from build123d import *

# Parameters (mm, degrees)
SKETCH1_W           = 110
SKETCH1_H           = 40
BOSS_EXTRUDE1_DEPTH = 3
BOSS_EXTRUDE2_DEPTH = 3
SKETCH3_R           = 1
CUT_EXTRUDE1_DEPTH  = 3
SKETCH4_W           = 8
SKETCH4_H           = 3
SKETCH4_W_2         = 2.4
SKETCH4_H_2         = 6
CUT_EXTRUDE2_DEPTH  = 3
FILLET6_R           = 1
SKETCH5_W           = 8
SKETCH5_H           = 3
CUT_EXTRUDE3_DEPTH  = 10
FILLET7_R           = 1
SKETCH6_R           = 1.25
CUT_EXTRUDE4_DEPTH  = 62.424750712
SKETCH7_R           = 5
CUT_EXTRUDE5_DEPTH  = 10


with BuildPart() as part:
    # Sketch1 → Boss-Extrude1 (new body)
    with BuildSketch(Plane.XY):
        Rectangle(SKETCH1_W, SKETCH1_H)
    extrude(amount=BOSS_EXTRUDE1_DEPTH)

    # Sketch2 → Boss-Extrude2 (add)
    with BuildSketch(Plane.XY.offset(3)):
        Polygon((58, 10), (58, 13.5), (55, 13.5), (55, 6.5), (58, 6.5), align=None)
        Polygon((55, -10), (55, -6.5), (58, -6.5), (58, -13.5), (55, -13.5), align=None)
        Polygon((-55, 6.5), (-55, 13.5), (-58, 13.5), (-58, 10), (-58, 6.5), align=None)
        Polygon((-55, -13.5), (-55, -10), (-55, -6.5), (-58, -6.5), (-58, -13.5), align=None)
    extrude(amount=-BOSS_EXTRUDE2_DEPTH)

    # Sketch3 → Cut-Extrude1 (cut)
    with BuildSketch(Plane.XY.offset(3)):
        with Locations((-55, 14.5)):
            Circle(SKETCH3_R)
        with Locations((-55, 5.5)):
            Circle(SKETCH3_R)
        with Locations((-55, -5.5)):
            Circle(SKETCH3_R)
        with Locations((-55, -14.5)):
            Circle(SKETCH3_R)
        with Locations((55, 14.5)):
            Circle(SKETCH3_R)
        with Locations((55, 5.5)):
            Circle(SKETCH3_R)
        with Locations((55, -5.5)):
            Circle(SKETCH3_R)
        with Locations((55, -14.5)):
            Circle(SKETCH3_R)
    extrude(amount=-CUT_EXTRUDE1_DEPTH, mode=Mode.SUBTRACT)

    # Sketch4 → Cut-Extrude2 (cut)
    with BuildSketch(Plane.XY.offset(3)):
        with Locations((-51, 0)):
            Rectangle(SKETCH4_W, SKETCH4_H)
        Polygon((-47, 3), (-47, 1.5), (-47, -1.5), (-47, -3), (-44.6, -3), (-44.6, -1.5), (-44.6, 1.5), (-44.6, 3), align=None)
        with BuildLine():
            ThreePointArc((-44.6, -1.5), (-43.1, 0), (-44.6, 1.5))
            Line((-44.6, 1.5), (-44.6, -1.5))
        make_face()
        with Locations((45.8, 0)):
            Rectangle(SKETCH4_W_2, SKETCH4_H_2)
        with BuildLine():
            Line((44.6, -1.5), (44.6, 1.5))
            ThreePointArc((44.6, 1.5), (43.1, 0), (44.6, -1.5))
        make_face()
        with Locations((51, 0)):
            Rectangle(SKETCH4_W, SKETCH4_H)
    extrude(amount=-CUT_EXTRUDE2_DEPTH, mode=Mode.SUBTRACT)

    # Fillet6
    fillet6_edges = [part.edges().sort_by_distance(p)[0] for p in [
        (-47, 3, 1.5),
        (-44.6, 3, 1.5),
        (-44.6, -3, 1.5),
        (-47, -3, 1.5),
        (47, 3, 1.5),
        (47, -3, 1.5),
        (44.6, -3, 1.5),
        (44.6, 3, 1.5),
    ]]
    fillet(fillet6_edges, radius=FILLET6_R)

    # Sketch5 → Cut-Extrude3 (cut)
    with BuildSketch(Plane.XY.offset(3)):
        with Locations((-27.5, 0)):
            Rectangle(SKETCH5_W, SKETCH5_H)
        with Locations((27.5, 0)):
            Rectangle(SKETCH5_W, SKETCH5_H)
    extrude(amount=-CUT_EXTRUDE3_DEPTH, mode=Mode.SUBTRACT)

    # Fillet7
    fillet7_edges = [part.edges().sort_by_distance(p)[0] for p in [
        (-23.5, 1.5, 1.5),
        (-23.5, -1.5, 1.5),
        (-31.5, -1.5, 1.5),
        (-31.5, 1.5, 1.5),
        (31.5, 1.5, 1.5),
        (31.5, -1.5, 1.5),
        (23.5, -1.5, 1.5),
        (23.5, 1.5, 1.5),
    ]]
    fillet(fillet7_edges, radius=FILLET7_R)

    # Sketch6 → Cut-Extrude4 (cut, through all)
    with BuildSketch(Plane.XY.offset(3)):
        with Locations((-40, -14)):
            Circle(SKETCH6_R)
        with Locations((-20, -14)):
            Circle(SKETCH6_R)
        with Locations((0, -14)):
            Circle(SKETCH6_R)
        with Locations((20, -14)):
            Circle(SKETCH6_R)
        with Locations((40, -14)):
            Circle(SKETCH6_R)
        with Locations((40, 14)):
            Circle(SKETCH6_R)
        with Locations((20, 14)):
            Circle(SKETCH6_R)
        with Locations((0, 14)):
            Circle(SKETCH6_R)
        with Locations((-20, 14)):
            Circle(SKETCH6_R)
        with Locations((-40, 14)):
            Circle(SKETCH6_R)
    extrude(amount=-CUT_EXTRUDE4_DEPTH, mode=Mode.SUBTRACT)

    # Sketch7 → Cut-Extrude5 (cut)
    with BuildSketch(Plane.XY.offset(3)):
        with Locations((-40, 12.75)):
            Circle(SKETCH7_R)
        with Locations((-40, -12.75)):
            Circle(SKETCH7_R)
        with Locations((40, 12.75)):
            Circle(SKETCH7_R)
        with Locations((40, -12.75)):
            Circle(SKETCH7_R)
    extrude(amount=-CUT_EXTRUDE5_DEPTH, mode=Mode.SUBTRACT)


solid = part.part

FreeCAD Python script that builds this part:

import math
import FreeCAD as App
import Part
import Sketcher
Q = App.Units.Quantity


def edges_at(feature, points):
    """Names of the edges that pass closest to the given points."""
    edges = feature.Shape.Edges
    near = lambda p: min(range(len(edges)), key=lambda i: edges[i].distToShape(Part.Vertex(*p))[0])
    return sorted({f"Edge{near(p) + 1}" for p in points})

doc = App.newDocument("Part")
body = doc.addObject("PartDesign::Body", "Body")

sketch1 = body.newObject("Sketcher::SketchObject", "Sketch")
sketch1.AttachmentSupport = (doc.getObject("XY_Plane"), [""])
sketch1.MapMode = "FlatFace"
sketch1.addGeometry(Part.LineSegment(App.Vector(-55, 20, 0), App.Vector(-55, -20, 0)), False)
sketch1.addGeometry(Part.LineSegment(App.Vector(-55, -20, 0), App.Vector(55, -20, 0)), False)
sketch1.addGeometry(Part.LineSegment(App.Vector(55, -20, 0), App.Vector(55, 20, 0)), False)
sketch1.addGeometry(Part.LineSegment(App.Vector(55, 20, 0), App.Vector(-55, 20, 0)), False)
sketch1.addConstraint(Sketcher.Constraint("Coincident", 0, 2, 1, 1))
sketch1.addConstraint(Sketcher.Constraint("Coincident", 1, 2, 2, 1))
sketch1.addConstraint(Sketcher.Constraint("Coincident", 2, 2, 3, 1))
sketch1.addConstraint(Sketcher.Constraint("Coincident", 3, 2, 0, 1))
sketch1.addConstraint(Sketcher.Constraint("Vertical", 0))
sketch1.addConstraint(Sketcher.Constraint("Horizontal", 1))
sketch1.addConstraint(Sketcher.Constraint("Vertical", 2))
sketch1.addConstraint(Sketcher.Constraint("Horizontal", 3))
sketch1.addConstraint(Sketcher.Constraint("Symmetric", 0, 2, 2, 2, -1, 1))
sketch1.addConstraint(Sketcher.Constraint("DistanceX", 1, 1, 1, 2, Q("110 mm")))
sketch1.addConstraint(Sketcher.Constraint("DistanceY", 0, 2, 0, 1, Q("40 mm")))
pad1 = body.newObject("PartDesign::Pad", "Pad")
pad1.Profile = sketch1
pad1.Length = 3

sketch2 = body.newObject("Sketcher::SketchObject", "Sketch001")
sketch2.AttachmentSupport = (doc.getObject("XY_Plane"), [""])
sketch2.MapMode = "FlatFace"
sketch2.AttachmentOffset = App.Placement(App.Vector(0, 0, 3), App.Rotation())
sketch2.addGeometry(Part.LineSegment(App.Vector(58, 13.5, 0), App.Vector(55, 13.5, 0)), False)
sketch2.addGeometry(Part.LineSegment(App.Vector(55, 13.5, 0), App.Vector(55, 6.5, 0)), False)
sketch2.addGeometry(Part.LineSegment(App.Vector(55, 6.5, 0), App.Vector(58, 6.5, 0)), False)
sketch2.addGeometry(Part.LineSegment(App.Vector(58, 6.5, 0), App.Vector(58, 13.5, 0)), False)
sketch2.addGeometry(Part.LineSegment(App.Vector(55, -6.5, 0), App.Vector(55, -13.5, 0)), False)
sketch2.addGeometry(Part.LineSegment(App.Vector(55, -13.5, 0), App.Vector(58, -13.5, 0)), False)
sketch2.addGeometry(Part.LineSegment(App.Vector(58, -13.5, 0), App.Vector(58, -6.5, 0)), False)
sketch2.addGeometry(Part.LineSegment(App.Vector(58, -6.5, 0), App.Vector(55, -6.5, 0)), False)
sketch2.addGeometry(Part.LineSegment(App.Vector(-55, 6.5, 0), App.Vector(-55, 13.5, 0)), False)
sketch2.addGeometry(Part.LineSegment(App.Vector(-55, 13.5, 0), App.Vector(-58, 13.5, 0)), False)
sketch2.addGeometry(Part.LineSegment(App.Vector(-58, 13.5, 0), App.Vector(-58, 6.5, 0)), False)
sketch2.addGeometry(Part.LineSegment(App.Vector(-58, 6.5, 0), App.Vector(-55, 6.5, 0)), False)
sketch2.addGeometry(Part.LineSegment(App.Vector(-55, -13.5, 0), App.Vector(-55, -6.5, 0)), False)
sketch2.addGeometry(Part.LineSegment(App.Vector(-55, -6.5, 0), App.Vector(-58, -6.5, 0)), False)
sketch2.addGeometry(Part.LineSegment(App.Vector(-58, -6.5, 0), App.Vector(-58, -13.5, 0)), False)
sketch2.addGeometry(Part.LineSegment(App.Vector(-58, -13.5, 0), App.Vector(-55, -13.5, 0)), False)
sketch2.addConstraint(Sketcher.Constraint("Coincident", 0, 2, 1, 1))
sketch2.addConstraint(Sketcher.Constraint("Coincident", 1, 2, 2, 1))
sketch2.addConstraint(Sketcher.Constraint("Coincident", 2, 2, 3, 1))
sketch2.addConstraint(Sketcher.Constraint("Coincident", 3, 2, 0, 1))
sketch2.addConstraint(Sketcher.Constraint("Coincident", 4, 2, 5, 1))
sketch2.addConstraint(Sketcher.Constraint("Coincident", 5, 2, 6, 1))
sketch2.addConstraint(Sketcher.Constraint("Coincident", 6, 2, 7, 1))
sketch2.addConstraint(Sketcher.Constraint("Coincident", 7, 2, 4, 1))
sketch2.addConstraint(Sketcher.Constraint("Coincident", 8, 2, 9, 1))
sketch2.addConstraint(Sketcher.Constraint("Coincident", 9, 2, 10, 1))
sketch2.addConstraint(Sketcher.Constraint("Coincident", 10, 2, 11, 1))
sketch2.addConstraint(Sketcher.Constraint("Coincident", 11, 2, 8, 1))
sketch2.addConstraint(Sketcher.Constraint("Coincident", 12, 2, 13, 1))
sketch2.addConstraint(Sketcher.Constraint("Coincident", 13, 2, 14, 1))
sketch2.addConstraint(Sketcher.Constraint("Coincident", 14, 2, 15, 1))
sketch2.addConstraint(Sketcher.Constraint("Coincident", 15, 2, 12, 1))
sketch2.addConstraint(Sketcher.Constraint("Horizontal", 0))
sketch2.addConstraint(Sketcher.Constraint("Vertical", 1))
sketch2.addConstraint(Sketcher.Constraint("Horizontal", 2))
sketch2.addConstraint(Sketcher.Constraint("Vertical", 3))
sketch2.addConstraint(Sketcher.Constraint("Vertical", 4))
sketch2.addConstraint(Sketcher.Constraint("Horizontal", 5))
sketch2.addConstraint(Sketcher.Constraint("Vertical", 6))
sketch2.addConstraint(Sketcher.Constraint("Horizontal", 7))
sketch2.addConstraint(Sketcher.Constraint("Vertical", 8))
sketch2.addConstraint(Sketcher.Constraint("Horizontal", 9))
sketch2.addConstraint(Sketcher.Constraint("Vertical", 10))
sketch2.addConstraint(Sketcher.Constraint("Horizontal", 11))
sketch2.addConstraint(Sketcher.Constraint("Vertical", 12))
sketch2.addConstraint(Sketcher.Constraint("Horizontal", 13))
sketch2.addConstraint(Sketcher.Constraint("Vertical", 14))
sketch2.addConstraint(Sketcher.Constraint("Horizontal", 15))
sketch2.addConstraint(Sketcher.Constraint("Symmetric", 4, 2, 8, 2, -1, 1))
sketch2.addConstraint(Sketcher.Constraint("Symmetric", 6, 2, 10, 2, -1, 1))
sketch2.addConstraint(Sketcher.Constraint("Symmetric", 1, 2, 12, 2, -1, 1))
sketch2.addConstraint(Sketcher.Constraint("Symmetric", 3, 2, 14, 2, -1, 1))
sketch2.addConstraint(Sketcher.Constraint("Symmetric", 0, 2, 8, 2, -2))
sketch2.addConstraint(Sketcher.Constraint("Symmetric", 2, 2, 10, 2, -2))
sketch2.addConstraint(Sketcher.Constraint("DistanceX", 0, 2, 0, 1, Q("3 mm")))
sketch2.addConstraint(Sketcher.Constraint("DistanceY", 1, 2, 1, 1, Q("7 mm")))
sketch2.addConstraint(Sketcher.Constraint("DistanceX", -1, 1, 0, 2, Q("55 mm")))
sketch2.addConstraint(Sketcher.Constraint("DistanceY", 4, 2, 1, 2, Q("20 mm")))
pad2 = body.newObject("PartDesign::Pad", "Pad001")
pad2.Profile = sketch2
pad2.Length = 3
pad2.Reversed = True

sketch3 = body.newObject("Sketcher::SketchObject", "Sketch002")
sketch3.AttachmentSupport = (doc.getObject("XY_Plane"), [""])
sketch3.MapMode = "FlatFace"
sketch3.AttachmentOffset = App.Placement(App.Vector(0, 0, 3), App.Rotation())
sketch3.addGeometry(Part.Circle(App.Vector(-55, 14.5, 0), App.Vector(0, 0, 1), 1), False)
sketch3.addGeometry(Part.Circle(App.Vector(-55, 5.5, 0), App.Vector(0, 0, 1), 1), False)
sketch3.addGeometry(Part.Circle(App.Vector(-55, -5.5, 0), App.Vector(0, 0, 1), 1), False)
sketch3.addGeometry(Part.Circle(App.Vector(-55, -14.5, 0), App.Vector(0, 0, 1), 1), False)
sketch3.addGeometry(Part.Circle(App.Vector(55, 14.5, 0), App.Vector(0, 0, 1), 1), False)
sketch3.addGeometry(Part.Circle(App.Vector(55, 5.5, 0), App.Vector(0, 0, 1), 1), False)
sketch3.addGeometry(Part.Circle(App.Vector(55, -5.5, 0), App.Vector(0, 0, 1), 1), False)
sketch3.addGeometry(Part.Circle(App.Vector(55, -14.5, 0), App.Vector(0, 0, 1), 1), False)
sketch3.addConstraint(Sketcher.Constraint("Equal", 0, 1))
sketch3.addConstraint(Sketcher.Constraint("Equal", 1, 2))
sketch3.addConstraint(Sketcher.Constraint("Equal", 2, 3))
sketch3.addConstraint(Sketcher.Constraint("Equal", 3, 4))
sketch3.addConstraint(Sketcher.Constraint("Equal", 4, 5))
sketch3.addConstraint(Sketcher.Constraint("Equal", 5, 6))
sketch3.addConstraint(Sketcher.Constraint("Equal", 6, 7))
sketch3.addConstraint(Sketcher.Constraint("Symmetric", 3, 3, 4, 3, -1, 1))
sketch3.addConstraint(Sketcher.Constraint("Symmetric", 2, 3, 5, 3, -1, 1))
sketch3.addConstraint(Sketcher.Constraint("Symmetric", 1, 3, 6, 3, -1, 1))
sketch3.addConstraint(Sketcher.Constraint("Symmetric", 0, 3, 7, 3, -1, 1))
sketch3.addConstraint(Sketcher.Constraint("Symmetric", 0, 3, 4, 3, -2))
sketch3.addConstraint(Sketcher.Constraint("Symmetric", 1, 3, 5, 3, -2))
sketch3.addConstraint(Sketcher.Constraint("Vertical", 0, 3, 1, 3))
sketch3.addConstraint(Sketcher.Constraint("Diameter", 0, Q("2 mm")))
sketch3.addConstraint(Sketcher.Constraint("DistanceX", 0, 3, -1, 1, Q("55 mm")))
sketch3.addConstraint(Sketcher.Constraint("DistanceY", 1, 3, 0, 3, Q("9 mm")))
sketch3.addConstraint(Sketcher.Constraint("DistanceY", 2, 3, 1, 3, Q("11 mm")))
pocket1 = body.newObject("PartDesign::Pocket", "Pocket")
pocket1.Profile = sketch3
pocket1.Length = 3

sketch4 = body.newObject("Sketcher::SketchObject", "Sketch003")
sketch4.AttachmentSupport = (doc.getObject("XY_Plane"), [""])
sketch4.MapMode = "FlatFace"
sketch4.AttachmentOffset = App.Placement(App.Vector(0, 0, 3), App.Rotation())
sketch4.addGeometry(Part.LineSegment(App.Vector(-55, 1.5, 0), App.Vector(-55, -1.5, 0)), False)
sketch4.addGeometry(Part.LineSegment(App.Vector(-55, -1.5, 0), App.Vector(-47, -1.5, 0)), False)
sketch4.addGeometry(Part.LineSegment(App.Vector(-47, -1.5, 0), App.Vector(-47, -3, 0)), False)
sketch4.addGeometry(Part.LineSegment(App.Vector(-47, -3, 0), App.Vector(-44.6, -3, 0)), False)
sketch4.addGeometry(Part.LineSegment(App.Vector(-44.6, -3, 0), App.Vector(-44.6, -1.5, 0)), False)
sketch4.addGeometry(Part.ArcOfCircle(Part.Circle(App.Vector(-44.6, 0, 0), App.Vector(0, 0, 1), 1.5), math.radians(-90), math.radians(90)), False)
sketch4.addGeometry(Part.LineSegment(App.Vector(-44.6, 1.5, 0), App.Vector(-44.6, 3, 0)), False)
sketch4.addGeometry(Part.LineSegment(App.Vector(-44.6, 3, 0), App.Vector(-47, 3, 0)), False)
sketch4.addGeometry(Part.LineSegment(App.Vector(-47, 3, 0), App.Vector(-47, 1.5, 0)), False)
sketch4.addGeometry(Part.LineSegment(App.Vector(-47, 1.5, 0), App.Vector(-55, 1.5, 0)), False)
sketch4.addGeometry(Part.LineSegment(App.Vector(44.6, -1.5, 0), App.Vector(44.6, -3, 0)), False)
sketch4.addGeometry(Part.LineSegment(App.Vector(44.6, -3, 0), App.Vector(47, -3, 0)), False)
sketch4.addGeometry(Part.LineSegment(App.Vector(47, -3, 0), App.Vector(47, -1.5, 0)), False)
sketch4.addGeometry(Part.LineSegment(App.Vector(47, -1.5, 0), App.Vector(55, -1.5, 0)), False)
sketch4.addGeometry(Part.LineSegment(App.Vector(55, -1.5, 0), App.Vector(55, 1.5, 0)), False)
sketch4.addGeometry(Part.LineSegment(App.Vector(55, 1.5, 0), App.Vector(47, 1.5, 0)), False)
sketch4.addGeometry(Part.LineSegment(App.Vector(47, 1.5, 0), App.Vector(47, 3, 0)), False)
sketch4.addGeometry(Part.LineSegment(App.Vector(47, 3, 0), App.Vector(44.6, 3, 0)), False)
sketch4.addGeometry(Part.LineSegment(App.Vector(44.6, 3, 0), App.Vector(44.6, 1.5, 0)), False)
sketch4.addGeometry(Part.ArcOfCircle(Part.Circle(App.Vector(44.6, 0, 0), App.Vector(0, 0, 1), 1.5), math.radians(90), math.radians(270)), False)
sketch4.addConstraint(Sketcher.Constraint("Coincident", 0, 2, 1, 1))
sketch4.addConstraint(Sketcher.Constraint("Coincident", 1, 2, 2, 1))
sketch4.addConstraint(Sketcher.Constraint("Coincident", 2, 2, 3, 1))
sketch4.addConstraint(Sketcher.Constraint("Coincident", 3, 2, 4, 1))
sketch4.addConstraint(Sketcher.Constraint("Coincident", 4, 2, 5, 1))
sketch4.addConstraint(Sketcher.Constraint("Coincident", 5, 2, 6, 1))
sketch4.addConstraint(Sketcher.Constraint("Coincident", 6, 2, 7, 1))
sketch4.addConstraint(Sketcher.Constraint("Coincident", 7, 2, 8, 1))
sketch4.addConstraint(Sketcher.Constraint("Coincident", 8, 2, 9, 1))
sketch4.addConstraint(Sketcher.Constraint("Coincident", 9, 2, 0, 1))
sketch4.addConstraint(Sketcher.Constraint("Coincident", 10, 2, 11, 1))
sketch4.addConstraint(Sketcher.Constraint("Coincident", 11, 2, 12, 1))
sketch4.addConstraint(Sketcher.Constraint("Coincident", 12, 2, 13, 1))
sketch4.addConstraint(Sketcher.Constraint("Coincident", 13, 2, 14, 1))
sketch4.addConstraint(Sketcher.Constraint("Coincident", 14, 2, 15, 1))
sketch4.addConstraint(Sketcher.Constraint("Coincident", 15, 2, 16, 1))
sketch4.addConstraint(Sketcher.Constraint("Coincident", 16, 2, 17, 1))
sketch4.addConstraint(Sketcher.Constraint("Coincident", 17, 2, 18, 1))
sketch4.addConstraint(Sketcher.Constraint("Coincident", 18, 2, 19, 1))
sketch4.addConstraint(Sketcher.Constraint("Coincident", 19, 2, 10, 1))
sketch4.addConstraint(Sketcher.Constraint("Vertical", 0))
sketch4.addConstraint(Sketcher.Constraint("Horizontal", 1))
sketch4.addConstraint(Sketcher.Constraint("Vertical", 2))
sketch4.addConstraint(Sketcher.Constraint("Horizontal", 3))
sketch4.addConstraint(Sketcher.Constraint("Vertical", 4))
sketch4.addConstraint(Sketcher.Constraint("Vertical", 6))
sketch4.addConstraint(Sketcher.Constraint("Horizontal", 7))
sketch4.addConstraint(Sketcher.Constraint("Vertical", 8))
sketch4.addConstraint(Sketcher.Constraint("Horizontal", 9))
sketch4.addConstraint(Sketcher.Constraint("Vertical", 10))
sketch4.addConstraint(Sketcher.Constraint("Horizontal", 11))
sketch4.addConstraint(Sketcher.Constraint("Vertical", 12))
sketch4.addConstraint(Sketcher.Constraint("Horizontal", 13))
sketch4.addConstraint(Sketcher.Constraint("Vertical", 14))
sketch4.addConstraint(Sketcher.Constraint("Horizontal", 15))
sketch4.addConstraint(Sketcher.Constraint("Vertical", 16))
sketch4.addConstraint(Sketcher.Constraint("Horizontal", 17))
sketch4.addConstraint(Sketcher.Constraint("Vertical", 18))
sketch4.addConstraint(Sketcher.Constraint("Equal", 5, 19))
sketch4.addConstraint(Sketcher.Constraint("Symmetric", 5, 3, 19, 3, -1, 1))
sketch4.addConstraint(Sketcher.Constraint("Symmetric", 6, 2, 10, 2, -1, 1))
sketch4.addConstraint(Sketcher.Constraint("Symmetric", 8, 2, 12, 2, -1, 1))
sketch4.addConstraint(Sketcher.Constraint("Symmetric", 0, 2, 14, 2, -1, 1))
sketch4.addConstraint(Sketcher.Constraint("Symmetric", 2, 2, 16, 2, -1, 1))
sketch4.addConstraint(Sketcher.Constraint("Symmetric", 3, 2, 10, 2, -2))
sketch4.addConstraint(Sketcher.Constraint("Symmetric", 1, 2, 12, 2, -2))
sketch4.addConstraint(Sketcher.Constraint("Symmetric", 5, 2, 18, 2, -2))
sketch4.addConstraint(Sketcher.Constraint("Horizontal", 1, 2, 4, 2))
sketch4.addConstraint(Sketcher.Constraint("Vertical", 5, 3, 3, 2))
sketch4.addConstraint(Sketcher.Constraint("Radius", 5, Q("1.5 mm")))
sketch4.addConstraint(Sketcher.Constraint("DistanceX", 1, 1, 1, 2, Q("8 mm")))
sketch4.addConstraint(Sketcher.Constraint("DistanceX", 3, 1, 3, 2, Q("2.4 mm")))
sketch4.addConstraint(Sketcher.Constraint("DistanceY", 2, 2, 2, 1, Q("1.5 mm")))
sketch4.addConstraint(Sketcher.Constraint("DistanceX", 0, 2, -1, 1, Q("55 mm")))
pocket2 = body.newObject("PartDesign::Pocket", "Pocket001")
pocket2.Profile = sketch4
pocket2.Length = 3
doc.recompute()

fillet = body.newObject("PartDesign::Fillet", "Fillet")
fillet.Base = (pocket2, edges_at(pocket2, [
    (-47, 3, 1.5),
    (-44.6, 3, 1.5),
    (-44.6, -3, 1.5),
    (-47, -3, 1.5),
    (47, 3, 1.5),
    (47, -3, 1.5),
    (44.6, -3, 1.5),
    (44.6, 3, 1.5),
]))
fillet.Radius = 1

sketch5 = body.newObject("Sketcher::SketchObject", "Sketch004")
sketch5.AttachmentSupport = (doc.getObject("XY_Plane"), [""])
sketch5.MapMode = "FlatFace"
sketch5.AttachmentOffset = App.Placement(App.Vector(0, 0, 3), App.Rotation())
sketch5.addGeometry(Part.LineSegment(App.Vector(-31.5, 1.5, 0), App.Vector(-31.5, -1.5, 0)), False)
sketch5.addGeometry(Part.LineSegment(App.Vector(-31.5, -1.5, 0), App.Vector(-23.5, -1.5, 0)), False)
sketch5.addGeometry(Part.LineSegment(App.Vector(-23.5, -1.5, 0), App.Vector(-23.5, 1.5, 0)), False)
sketch5.addGeometry(Part.LineSegment(App.Vector(-23.5, 1.5, 0), App.Vector(-31.5, 1.5, 0)), False)
sketch5.addGeometry(Part.LineSegment(App.Vector(23.5, 1.5, 0), App.Vector(23.5, -1.5, 0)), False)
sketch5.addGeometry(Part.LineSegment(App.Vector(23.5, -1.5, 0), App.Vector(31.5, -1.5, 0)), False)
sketch5.addGeometry(Part.LineSegment(App.Vector(31.5, -1.5, 0), App.Vector(31.5, 1.5, 0)), False)
sketch5.addGeometry(Part.LineSegment(App.Vector(31.5, 1.5, 0), App.Vector(23.5, 1.5, 0)), False)
sketch5.addConstraint(Sketcher.Constraint("Coincident", 0, 2, 1, 1))
sketch5.addConstraint(Sketcher.Constraint("Coincident", 1, 2, 2, 1))
sketch5.addConstraint(Sketcher.Constraint("Coincident", 2, 2, 3, 1))
sketch5.addConstraint(Sketcher.Constraint("Coincident", 3, 2, 0, 1))
sketch5.addConstraint(Sketcher.Constraint("Coincident", 4, 2, 5, 1))
sketch5.addConstraint(Sketcher.Constraint("Coincident", 5, 2, 6, 1))
sketch5.addConstraint(Sketcher.Constraint("Coincident", 6, 2, 7, 1))
sketch5.addConstraint(Sketcher.Constraint("Coincident", 7, 2, 4, 1))
sketch5.addConstraint(Sketcher.Constraint("Vertical", 0))
sketch5.addConstraint(Sketcher.Constraint("Horizontal", 1))
sketch5.addConstraint(Sketcher.Constraint("Vertical", 2))
sketch5.addConstraint(Sketcher.Constraint("Horizontal", 3))
sketch5.addConstraint(Sketcher.Constraint("Vertical", 4))
sketch5.addConstraint(Sketcher.Constraint("Horizontal", 5))
sketch5.addConstraint(Sketcher.Constraint("Vertical", 6))
sketch5.addConstraint(Sketcher.Constraint("Horizontal", 7))
sketch5.addConstraint(Sketcher.Constraint("Symmetric", 2, 2, 4, 2, -1, 1))
sketch5.addConstraint(Sketcher.Constraint("Symmetric", 0, 2, 6, 2, -1, 1))
sketch5.addConstraint(Sketcher.Constraint("Horizontal", 1, 2, 4, 2))
sketch5.addConstraint(Sketcher.Constraint("DistanceX", 1, 1, 1, 2, Q("8 mm")))
sketch5.addConstraint(Sketcher.Constraint("DistanceY", 0, 2, 0, 1, Q("3 mm")))
sketch5.addConstraint(Sketcher.Constraint("DistanceX", 1, 2, 4, 2, Q("47 mm")))
pocket3 = body.newObject("PartDesign::Pocket", "Pocket002")
pocket3.Profile = sketch5
pocket3.Length = 10
doc.recompute()

fillet2 = body.newObject("PartDesign::Fillet", "Fillet001")
fillet2.Base = (pocket3, edges_at(pocket3, [
    (-23.5, 1.5, 1.5),
    (-23.5, -1.5, 1.5),
    (-31.5, -1.5, 1.5),
    (-31.5, 1.5, 1.5),
    (31.5, 1.5, 1.5),
    (31.5, -1.5, 1.5),
    (23.5, -1.5, 1.5),
    (23.5, 1.5, 1.5),
]))
fillet2.Radius = 1

sketch6 = body.newObject("Sketcher::SketchObject", "Sketch005")
sketch6.AttachmentSupport = (doc.getObject("XY_Plane"), [""])
sketch6.MapMode = "FlatFace"
sketch6.AttachmentOffset = App.Placement(App.Vector(0, 0, 3), App.Rotation())
sketch6.addGeometry(Part.Circle(App.Vector(-40, -14, 0), App.Vector(0, 0, 1), 1.25), False)
sketch6.addGeometry(Part.Circle(App.Vector(-20, -14, 0), App.Vector(0, 0, 1), 1.25), False)
sketch6.addGeometry(Part.Circle(App.Vector(0, -14, 0), App.Vector(0, 0, 1), 1.25), False)
sketch6.addGeometry(Part.Circle(App.Vector(20, -14, 0), App.Vector(0, 0, 1), 1.25), False)
sketch6.addGeometry(Part.Circle(App.Vector(40, -14, 0), App.Vector(0, 0, 1), 1.25), False)
sketch6.addGeometry(Part.Circle(App.Vector(40, 14, 0), App.Vector(0, 0, 1), 1.25), False)
sketch6.addGeometry(Part.Circle(App.Vector(20, 14, 0), App.Vector(0, 0, 1), 1.25), False)
sketch6.addGeometry(Part.Circle(App.Vector(0, 14, 0), App.Vector(0, 0, 1), 1.25), False)
sketch6.addGeometry(Part.Circle(App.Vector(-20, 14, 0), App.Vector(0, 0, 1), 1.25), False)
sketch6.addGeometry(Part.Circle(App.Vector(-40, 14, 0), App.Vector(0, 0, 1), 1.25), False)
sketch6.addConstraint(Sketcher.Constraint("Equal", 0, 1))
sketch6.addConstraint(Sketcher.Constraint("Equal", 1, 2))
sketch6.addConstraint(Sketcher.Constraint("Equal", 2, 3))
sketch6.addConstraint(Sketcher.Constraint("Equal", 3, 4))
sketch6.addConstraint(Sketcher.Constraint("Equal", 4, 5))
sketch6.addConstraint(Sketcher.Constraint("Equal", 5, 6))
sketch6.addConstraint(Sketcher.Constraint("Equal", 6, 7))
sketch6.addConstraint(Sketcher.Constraint("Equal", 7, 8))
sketch6.addConstraint(Sketcher.Constraint("Equal", 8, 9))
sketch6.addConstraint(Sketcher.Constraint("Symmetric", 0, 3, 5, 3, -1, 1))
sketch6.addConstraint(Sketcher.Constraint("Symmetric", 1, 3, 6, 3, -1, 1))
sketch6.addConstraint(Sketcher.Constraint("Symmetric", 2, 3, 7, 3, -1, 1))
sketch6.addConstraint(Sketcher.Constraint("Symmetric", 3, 3, 8, 3, -1, 1))
sketch6.addConstraint(Sketcher.Constraint("Symmetric", 4, 3, 9, 3, -1, 1))
sketch6.addConstraint(Sketcher.Constraint("Symmetric", 1, 3, 3, 3, -2))
sketch6.addConstraint(Sketcher.Constraint("Symmetric", 0, 3, 4, 3, -2))
sketch6.addConstraint(Sketcher.Constraint("PointOnObject", 2, 3, -2))
sketch6.addConstraint(Sketcher.Constraint("Horizontal", 0, 3, 1, 3))
sketch6.addConstraint(Sketcher.Constraint("Horizontal", 1, 3, 2, 3))
sketch6.addConstraint(Sketcher.Constraint("Diameter", 0, Q("2.5 mm")))
sketch6.addConstraint(Sketcher.Constraint("DistanceX", 0, 3, -1, 1, Q("40 mm")))
sketch6.addConstraint(Sketcher.Constraint("DistanceY", 0, 3, -1, 1, Q("14 mm")))
sketch6.addConstraint(Sketcher.Constraint("DistanceX", 1, 3, -1, 1, Q("20 mm")))
pocket4 = body.newObject("PartDesign::Pocket", "Pocket003")
pocket4.Profile = sketch6
pocket4.Type = "ThroughAll"

sketch7 = body.newObject("Sketcher::SketchObject", "Sketch006")
sketch7.AttachmentSupport = (doc.getObject("XY_Plane"), [""])
sketch7.MapMode = "FlatFace"
sketch7.AttachmentOffset = App.Placement(App.Vector(0, 0, 3), App.Rotation())
sketch7.addGeometry(Part.Circle(App.Vector(-40, 12.75, 0), App.Vector(0, 0, 1), 5), False)
sketch7.addGeometry(Part.Circle(App.Vector(-40, -12.75, 0), App.Vector(0, 0, 1), 5), False)
sketch7.addGeometry(Part.Circle(App.Vector(40, 12.75, 0), App.Vector(0, 0, 1), 5), False)
sketch7.addGeometry(Part.Circle(App.Vector(40, -12.75, 0), App.Vector(0, 0, 1), 5), False)
sketch7.addConstraint(Sketcher.Constraint("Equal", 0, 1))
sketch7.addConstraint(Sketcher.Constraint("Equal", 1, 2))
sketch7.addConstraint(Sketcher.Constraint("Equal", 2, 3))
sketch7.addConstraint(Sketcher.Constraint("Symmetric", 1, 3, 2, 3, -1, 1))
sketch7.addConstraint(Sketcher.Constraint("Symmetric", 0, 3, 3, 3, -1, 1))
sketch7.addConstraint(Sketcher.Constraint("Symmetric", 0, 3, 2, 3, -2))
sketch7.addConstraint(Sketcher.Constraint("Diameter", 0, Q("10 mm")))
sketch7.addConstraint(Sketcher.Constraint("DistanceX", 0, 3, -1, 1, Q("40 mm")))
sketch7.addConstraint(Sketcher.Constraint("DistanceY", 1, 3, 0, 3, Q("25.5 mm")))
pocket5 = body.newObject("PartDesign::Pocket", "Pocket004")
pocket5.Profile = sketch7
pocket5.Length = 10

doc.recompute()
